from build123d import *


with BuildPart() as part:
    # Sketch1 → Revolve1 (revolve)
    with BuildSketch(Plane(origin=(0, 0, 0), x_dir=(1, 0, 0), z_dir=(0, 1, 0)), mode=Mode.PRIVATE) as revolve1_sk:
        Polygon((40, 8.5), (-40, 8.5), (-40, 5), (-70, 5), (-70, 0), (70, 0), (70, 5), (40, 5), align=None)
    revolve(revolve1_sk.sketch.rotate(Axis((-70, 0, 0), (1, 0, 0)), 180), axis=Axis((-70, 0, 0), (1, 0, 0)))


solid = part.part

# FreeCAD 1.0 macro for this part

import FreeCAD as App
import Part
import Sketcher
from FreeCAD import Vector

doc = App.newDocument("Part")
body = doc.addObject("PartDesign::Body", "Body")

sketch1 = body.newObject("Sketcher::SketchObject", "Sketch")
sketch1.AttachmentSupport = (doc.getObject("XZ_Plane"), [""])
sketch1.MapMode = "FlatFace"
sketch1.addGeometry([
    Part.LineSegment(Vector(40, -8.5, 0), Vector(-40, -8.5, 0)),
    Part.LineSegment(Vector(-40, -8.5, 0), Vector(-40, -5, 0)),
    Part.LineSegment(Vector(-40, -5, 0), Vector(-70, -5, 0)),
    Part.LineSegment(Vector(-70, -5, 0), Vector(-70, 0, 0)),
    Part.LineSegment(Vector(-70, 0, 0), Vector(70, 0, 0)),
    Part.LineSegment(Vector(70, 0, 0), Vector(70, -5, 0)),
    Part.LineSegment(Vector(70, -5, 0), Vector(40, -5, 0)),
    Part.LineSegment(Vector(40, -5, 0), Vector(40, -8.5, 0)),
], False)
sketch1.addConstraint([
    Sketcher.Constraint("Coincident", 0, 2, 1, 1),
    Sketcher.Constraint("Coincident", 1, 2, 2, 1),
    Sketcher.Constraint("Coincident", 2, 2, 3, 1),
    Sketcher.Constraint("Coincident", 3, 2, 4, 1),
    Sketcher.Constraint("Coincident", 4, 2, 5, 1),
    Sketcher.Constraint("Coincident", 5, 2, 6, 1),
    Sketcher.Constraint("Coincident", 6, 2, 7, 1),
    Sketcher.Constraint("Coincident", 7, 2, 0, 1),
    Sketcher.Constraint("Horizontal", 0),
    Sketcher.Constraint("Vertical", 1),
    Sketcher.Constraint("Horizontal", 2),
    Sketcher.Constraint("Vertical", 3),
    Sketcher.Constraint("Horizontal", 4),
    Sketcher.Constraint("Vertical", 5),
    Sketcher.Constraint("Horizontal", 6),
    Sketcher.Constraint("Vertical", 7),
    Sketcher.Constraint("Symmetric", 3, 2, 4, 2, -1, 1),
    Sketcher.Constraint("Symmetric", 1, 2, 6, 2, -2),
    Sketcher.Constraint("DistanceX", 0, 2, 0, 1, 80.0),
    Sketcher.Constraint("DistanceX", 2, 2, 2, 1, 30.0),
    Sketcher.Constraint("DistanceY", 3, 1, 3, 2, 5.0),
    Sketcher.Constraint("DistanceY", 1, 1, 1, 2, 3.5),
])
revolution = body.newObject("PartDesign::Revolution", "Revolution")
revolution.Profile = sketch1
revolution.ReferenceAxis = (sketch1, ["H_Axis"])
revolution.Angle = 360

doc.recompute()
